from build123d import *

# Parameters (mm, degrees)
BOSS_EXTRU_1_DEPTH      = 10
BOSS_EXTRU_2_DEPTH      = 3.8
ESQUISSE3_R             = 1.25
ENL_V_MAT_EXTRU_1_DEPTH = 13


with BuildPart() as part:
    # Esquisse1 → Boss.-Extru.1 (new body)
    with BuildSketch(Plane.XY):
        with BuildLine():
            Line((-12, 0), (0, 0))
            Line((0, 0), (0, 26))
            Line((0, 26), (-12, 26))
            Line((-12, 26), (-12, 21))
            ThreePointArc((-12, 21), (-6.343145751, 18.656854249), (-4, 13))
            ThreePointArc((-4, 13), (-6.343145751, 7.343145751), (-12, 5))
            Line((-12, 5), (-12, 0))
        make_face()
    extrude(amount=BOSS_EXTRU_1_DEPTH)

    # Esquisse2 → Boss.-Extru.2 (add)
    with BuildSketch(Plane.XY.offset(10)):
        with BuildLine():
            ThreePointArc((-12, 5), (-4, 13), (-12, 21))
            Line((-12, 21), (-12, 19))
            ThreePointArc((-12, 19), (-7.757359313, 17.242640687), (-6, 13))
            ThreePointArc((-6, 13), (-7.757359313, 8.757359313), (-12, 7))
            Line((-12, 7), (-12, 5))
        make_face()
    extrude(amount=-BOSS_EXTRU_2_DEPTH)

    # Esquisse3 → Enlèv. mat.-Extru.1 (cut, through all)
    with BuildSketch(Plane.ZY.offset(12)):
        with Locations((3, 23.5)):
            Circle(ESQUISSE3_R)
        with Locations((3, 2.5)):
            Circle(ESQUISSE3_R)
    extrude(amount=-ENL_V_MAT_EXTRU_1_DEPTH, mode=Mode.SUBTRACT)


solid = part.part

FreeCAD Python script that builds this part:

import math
import FreeCAD as App
import Part
import Sketcher
Q = App.Units.Quantity

doc = App.newDocument("Part")
body = doc.addObject("PartDesign::Body", "Body")

sketch1 = doc.addObject("Sketcher::SketchObject", "Sketch")
body.addObject(sketch1)
sketch1.AttachmentSupport = (doc.XY_Plane, [""])
sketch1.MapMode = "FlatFace"
sketch1.addGeometry(Part.LineSegment(App.Vector(-12, 0, 0), App.Vector(0, 0, 0)), False)
sketch1.addGeometry(Part.LineSegment(App.Vector(0, 0, 0), App.Vector(0, 26, 0)), False)
sketch1.addGeometry(Part.LineSegment(App.Vector(0, 26, 0), App.Vector(-12, 26, 0)), False)
sketch1.addGeometry(Part.LineSegment(App.Vector(-12, 26, 0), App.Vector(-12, 21, 0)), False)
sketch1.addGeometry(Part.ArcOfCircle(Part.Circle(App.Vector(-12, 13, 0), App.Vector(0, 0, 1), 8), math.radians(0), math.radians(90)), False)
sketch1.addGeometry(Part.ArcOfCircle(Part.Circle(App.Vector(-12, 13, 0), App.Vector(0, 0, 1), 8), math.radians(-90), math.radians(0)), False)
sketch1.addGeometry(Part.LineSegment(App.Vector(-12, 5, 0), App.Vector(-12, 0, 0)), False)
sketch1.addConstraint(Sketcher.Constraint("Coincident", 0, 2, 1, 1))
sketch1.addConstraint(Sketcher.Constraint("Coincident", 1, 2, 2, 1))
sketch1.addConstraint(Sketcher.Constraint("Coincident", 2, 2, 3, 1))
sketch1.addConstraint(Sketcher.Constraint("Coincident", 3, 2, 4, 2))
sketch1.addConstraint(Sketcher.Constraint("Tangent", 4, 1, 5, 2))
sketch1.addConstraint(Sketcher.Constraint("Coincident", 5, 1, 6, 1))
sketch1.addConstraint(Sketcher.Constraint("Coincident", 6, 2, 0, 1))
sketch1.addConstraint(Sketcher.Constraint("Horizontal", 0))
sketch1.addConstraint(Sketcher.Constraint("Vertical", 1))
sketch1.addConstraint(Sketcher.Constraint("Horizontal", 2))
sketch1.addConstraint(Sketcher.Constraint("Vertical", 3))
sketch1.addConstraint(Sketcher.Constraint("Vertical", 6))
sketch1.addConstraint(Sketcher.Constraint("Coincident", 0, 2, -1, 1))
sketch1.addConstraint(Sketcher.Constraint("Equal", 4, 5))
sketch1.addConstraint(Sketcher.Constraint("Horizontal", 5, 3, 4, 1))
sketch1.addConstraint(Sketcher.Constraint("Vertical", 5, 3, 2, 2))
sketch1.addConstraint(Sketcher.Constraint("Vertical", 3, 2, 5, 1))
sketch1.addConstraint(Sketcher.Constraint("Equal", 3, 6))
sketch1.addConstraint(Sketcher.Constraint("Radius", 4, Q("8 mm")))
sketch1.addConstraint(Sketcher.Constraint("DistanceX", 0, 1, 0, 2, Q("12 mm")))
sketch1.addConstraint(Sketcher.Constraint("DistanceY", 1, 1, 1, 2, Q("26 mm")))
pad1 = doc.addObject("PartDesign::Pad", "Pad")
body.addObject(pad1)
pad1.Profile = sketch1
pad1.Length = 10

sketch2 = doc.addObject("Sketcher::SketchObject", "Sketch001")
body.addObject(sketch2)
sketch2.AttachmentSupport = (doc.XY_Plane, [""])
sketch2.MapMode = "FlatFace"
sketch2.AttachmentOffset = App.Placement(App.Vector(0, 0, 10), App.Rotation())
sketch2.addGeometry(Part.ArcOfCircle(Part.Circle(App.Vector(-12, 13, 0), App.Vector(0, 0, 1), 8), math.radians(-90), math.radians(90)), False)
sketch2.addGeometry(Part.LineSegment(App.Vector(-12, 21, 0), App.Vector(-12, 19, 0)), False)
sketch2.addGeometry(Part.ArcOfCircle(Part.Circle(App.Vector(-12, 13, 0), App.Vector(0, 0, 1), 6), math.radians(0), math.radians(90)), False)
sketch2.addGeometry(Part.ArcOfCircle(Part.Circle(App.Vector(-12, 13, 0), App.Vector(0, 0, 1), 6), math.radians(-90), math.radians(0)), False)
sketch2.addGeometry(Part.LineSegment(App.Vector(-12, 7, 0), App.Vector(-12, 5, 0)), False)
sketch2.addConstraint(Sketcher.Constraint("Coincident", 0, 2, 1, 1))
sketch2.addConstraint(Sketcher.Constraint("Coincident", 1, 2, 2, 2))
sketch2.addConstraint(Sketcher.Constraint("Tangent", 2, 1, 3, 2))
sketch2.addConstraint(Sketcher.Constraint("Coincident", 3, 1, 4, 1))
sketch2.addConstraint(Sketcher.Constraint("Coincident", 4, 2, 0, 1))
sketch2.addConstraint(Sketcher.Constraint("Vertical", 1))
sketch2.addConstraint(Sketcher.Constraint("Vertical", 4))
sketch2.addConstraint(Sketcher.Constraint("Coincident", 2, 3, 0, 3))
sketch2.addConstraint(Sketcher.Constraint("Equal", 2, 3))
sketch2.addConstraint(Sketcher.Constraint("Horizontal", 3, 3, 2, 1))
sketch2.addConstraint(Sketcher.Constraint("Vertical", 3, 3, 0, 2))
sketch2.addConstraint(Sketcher.Constraint("Vertical", 1, 2, 3, 1))
sketch2.addConstraint(Sketcher.Constraint("Radius", 0, Q("8 mm")))
sketch2.addConstraint(Sketcher.Constraint("Radius", 2, Q("6 mm")))
sketch2.addConstraint(Sketcher.Constraint("DistanceX", 0, 3, -1, 1, Q("12 mm")))
sketch2.addConstraint(Sketcher.Constraint("DistanceY", -1, 1, 0, 3, Q("13 mm")))
pad2 = doc.addObject("PartDesign::Pad", "Pad001")
body.addObject(pad2)
pad2.Profile = sketch2
pad2.Length = 3.8
pad2.Reversed = True

sketch3 = doc.addObject("Sketcher::SketchObject", "Sketch002")
body.addObject(sketch3)
sketch3.AttachmentSupport = (doc.YZ_Plane, [""])
sketch3.MapMode = "FlatFace"
sketch3.AttachmentOffset = App.Placement(App.Vector(0, 0, -12), App.Rotation())
sketch3.addGeometry(Part.Circle(App.Vector(23.5, 3, 0), App.Vector(0, 0, 1), 1.2), False)
sketch3.addGeometry(Part.Circle(App.Vector(2.5, 3, 0), App.Vector(0, 0, 1), 1.2), False)
sketch3.addConstraint(Sketcher.Constraint("Equal", 0, 1))
sketch3.addConstraint(Sketcher.Constraint("Horizontal", 0, 3, 1, 3))
sketch3.addConstraint(Sketcher.Constraint("Diameter", 0, Q("2.5 mm")))
sketch3.addConstraint(Sketcher.Constraint("DistanceY", -1, 1, 0, 3, Q("3 mm")))
sketch3.addConstraint(Sketcher.Constraint("DistanceX", 1, 3, 0, 3, Q("21 mm")))
sketch3.addConstraint(Sketcher.Constraint("DistanceX", -1, 1, 0, 3, Q("23.5 mm")))
pocket1 = doc.addObject("PartDesign::Pocket", "Pocket")
body.addObject(pocket1)
pocket1.Profile = sketch3
pocket1.Type = "ThroughAll"
pocket1.Reversed = True

doc.recompute()
